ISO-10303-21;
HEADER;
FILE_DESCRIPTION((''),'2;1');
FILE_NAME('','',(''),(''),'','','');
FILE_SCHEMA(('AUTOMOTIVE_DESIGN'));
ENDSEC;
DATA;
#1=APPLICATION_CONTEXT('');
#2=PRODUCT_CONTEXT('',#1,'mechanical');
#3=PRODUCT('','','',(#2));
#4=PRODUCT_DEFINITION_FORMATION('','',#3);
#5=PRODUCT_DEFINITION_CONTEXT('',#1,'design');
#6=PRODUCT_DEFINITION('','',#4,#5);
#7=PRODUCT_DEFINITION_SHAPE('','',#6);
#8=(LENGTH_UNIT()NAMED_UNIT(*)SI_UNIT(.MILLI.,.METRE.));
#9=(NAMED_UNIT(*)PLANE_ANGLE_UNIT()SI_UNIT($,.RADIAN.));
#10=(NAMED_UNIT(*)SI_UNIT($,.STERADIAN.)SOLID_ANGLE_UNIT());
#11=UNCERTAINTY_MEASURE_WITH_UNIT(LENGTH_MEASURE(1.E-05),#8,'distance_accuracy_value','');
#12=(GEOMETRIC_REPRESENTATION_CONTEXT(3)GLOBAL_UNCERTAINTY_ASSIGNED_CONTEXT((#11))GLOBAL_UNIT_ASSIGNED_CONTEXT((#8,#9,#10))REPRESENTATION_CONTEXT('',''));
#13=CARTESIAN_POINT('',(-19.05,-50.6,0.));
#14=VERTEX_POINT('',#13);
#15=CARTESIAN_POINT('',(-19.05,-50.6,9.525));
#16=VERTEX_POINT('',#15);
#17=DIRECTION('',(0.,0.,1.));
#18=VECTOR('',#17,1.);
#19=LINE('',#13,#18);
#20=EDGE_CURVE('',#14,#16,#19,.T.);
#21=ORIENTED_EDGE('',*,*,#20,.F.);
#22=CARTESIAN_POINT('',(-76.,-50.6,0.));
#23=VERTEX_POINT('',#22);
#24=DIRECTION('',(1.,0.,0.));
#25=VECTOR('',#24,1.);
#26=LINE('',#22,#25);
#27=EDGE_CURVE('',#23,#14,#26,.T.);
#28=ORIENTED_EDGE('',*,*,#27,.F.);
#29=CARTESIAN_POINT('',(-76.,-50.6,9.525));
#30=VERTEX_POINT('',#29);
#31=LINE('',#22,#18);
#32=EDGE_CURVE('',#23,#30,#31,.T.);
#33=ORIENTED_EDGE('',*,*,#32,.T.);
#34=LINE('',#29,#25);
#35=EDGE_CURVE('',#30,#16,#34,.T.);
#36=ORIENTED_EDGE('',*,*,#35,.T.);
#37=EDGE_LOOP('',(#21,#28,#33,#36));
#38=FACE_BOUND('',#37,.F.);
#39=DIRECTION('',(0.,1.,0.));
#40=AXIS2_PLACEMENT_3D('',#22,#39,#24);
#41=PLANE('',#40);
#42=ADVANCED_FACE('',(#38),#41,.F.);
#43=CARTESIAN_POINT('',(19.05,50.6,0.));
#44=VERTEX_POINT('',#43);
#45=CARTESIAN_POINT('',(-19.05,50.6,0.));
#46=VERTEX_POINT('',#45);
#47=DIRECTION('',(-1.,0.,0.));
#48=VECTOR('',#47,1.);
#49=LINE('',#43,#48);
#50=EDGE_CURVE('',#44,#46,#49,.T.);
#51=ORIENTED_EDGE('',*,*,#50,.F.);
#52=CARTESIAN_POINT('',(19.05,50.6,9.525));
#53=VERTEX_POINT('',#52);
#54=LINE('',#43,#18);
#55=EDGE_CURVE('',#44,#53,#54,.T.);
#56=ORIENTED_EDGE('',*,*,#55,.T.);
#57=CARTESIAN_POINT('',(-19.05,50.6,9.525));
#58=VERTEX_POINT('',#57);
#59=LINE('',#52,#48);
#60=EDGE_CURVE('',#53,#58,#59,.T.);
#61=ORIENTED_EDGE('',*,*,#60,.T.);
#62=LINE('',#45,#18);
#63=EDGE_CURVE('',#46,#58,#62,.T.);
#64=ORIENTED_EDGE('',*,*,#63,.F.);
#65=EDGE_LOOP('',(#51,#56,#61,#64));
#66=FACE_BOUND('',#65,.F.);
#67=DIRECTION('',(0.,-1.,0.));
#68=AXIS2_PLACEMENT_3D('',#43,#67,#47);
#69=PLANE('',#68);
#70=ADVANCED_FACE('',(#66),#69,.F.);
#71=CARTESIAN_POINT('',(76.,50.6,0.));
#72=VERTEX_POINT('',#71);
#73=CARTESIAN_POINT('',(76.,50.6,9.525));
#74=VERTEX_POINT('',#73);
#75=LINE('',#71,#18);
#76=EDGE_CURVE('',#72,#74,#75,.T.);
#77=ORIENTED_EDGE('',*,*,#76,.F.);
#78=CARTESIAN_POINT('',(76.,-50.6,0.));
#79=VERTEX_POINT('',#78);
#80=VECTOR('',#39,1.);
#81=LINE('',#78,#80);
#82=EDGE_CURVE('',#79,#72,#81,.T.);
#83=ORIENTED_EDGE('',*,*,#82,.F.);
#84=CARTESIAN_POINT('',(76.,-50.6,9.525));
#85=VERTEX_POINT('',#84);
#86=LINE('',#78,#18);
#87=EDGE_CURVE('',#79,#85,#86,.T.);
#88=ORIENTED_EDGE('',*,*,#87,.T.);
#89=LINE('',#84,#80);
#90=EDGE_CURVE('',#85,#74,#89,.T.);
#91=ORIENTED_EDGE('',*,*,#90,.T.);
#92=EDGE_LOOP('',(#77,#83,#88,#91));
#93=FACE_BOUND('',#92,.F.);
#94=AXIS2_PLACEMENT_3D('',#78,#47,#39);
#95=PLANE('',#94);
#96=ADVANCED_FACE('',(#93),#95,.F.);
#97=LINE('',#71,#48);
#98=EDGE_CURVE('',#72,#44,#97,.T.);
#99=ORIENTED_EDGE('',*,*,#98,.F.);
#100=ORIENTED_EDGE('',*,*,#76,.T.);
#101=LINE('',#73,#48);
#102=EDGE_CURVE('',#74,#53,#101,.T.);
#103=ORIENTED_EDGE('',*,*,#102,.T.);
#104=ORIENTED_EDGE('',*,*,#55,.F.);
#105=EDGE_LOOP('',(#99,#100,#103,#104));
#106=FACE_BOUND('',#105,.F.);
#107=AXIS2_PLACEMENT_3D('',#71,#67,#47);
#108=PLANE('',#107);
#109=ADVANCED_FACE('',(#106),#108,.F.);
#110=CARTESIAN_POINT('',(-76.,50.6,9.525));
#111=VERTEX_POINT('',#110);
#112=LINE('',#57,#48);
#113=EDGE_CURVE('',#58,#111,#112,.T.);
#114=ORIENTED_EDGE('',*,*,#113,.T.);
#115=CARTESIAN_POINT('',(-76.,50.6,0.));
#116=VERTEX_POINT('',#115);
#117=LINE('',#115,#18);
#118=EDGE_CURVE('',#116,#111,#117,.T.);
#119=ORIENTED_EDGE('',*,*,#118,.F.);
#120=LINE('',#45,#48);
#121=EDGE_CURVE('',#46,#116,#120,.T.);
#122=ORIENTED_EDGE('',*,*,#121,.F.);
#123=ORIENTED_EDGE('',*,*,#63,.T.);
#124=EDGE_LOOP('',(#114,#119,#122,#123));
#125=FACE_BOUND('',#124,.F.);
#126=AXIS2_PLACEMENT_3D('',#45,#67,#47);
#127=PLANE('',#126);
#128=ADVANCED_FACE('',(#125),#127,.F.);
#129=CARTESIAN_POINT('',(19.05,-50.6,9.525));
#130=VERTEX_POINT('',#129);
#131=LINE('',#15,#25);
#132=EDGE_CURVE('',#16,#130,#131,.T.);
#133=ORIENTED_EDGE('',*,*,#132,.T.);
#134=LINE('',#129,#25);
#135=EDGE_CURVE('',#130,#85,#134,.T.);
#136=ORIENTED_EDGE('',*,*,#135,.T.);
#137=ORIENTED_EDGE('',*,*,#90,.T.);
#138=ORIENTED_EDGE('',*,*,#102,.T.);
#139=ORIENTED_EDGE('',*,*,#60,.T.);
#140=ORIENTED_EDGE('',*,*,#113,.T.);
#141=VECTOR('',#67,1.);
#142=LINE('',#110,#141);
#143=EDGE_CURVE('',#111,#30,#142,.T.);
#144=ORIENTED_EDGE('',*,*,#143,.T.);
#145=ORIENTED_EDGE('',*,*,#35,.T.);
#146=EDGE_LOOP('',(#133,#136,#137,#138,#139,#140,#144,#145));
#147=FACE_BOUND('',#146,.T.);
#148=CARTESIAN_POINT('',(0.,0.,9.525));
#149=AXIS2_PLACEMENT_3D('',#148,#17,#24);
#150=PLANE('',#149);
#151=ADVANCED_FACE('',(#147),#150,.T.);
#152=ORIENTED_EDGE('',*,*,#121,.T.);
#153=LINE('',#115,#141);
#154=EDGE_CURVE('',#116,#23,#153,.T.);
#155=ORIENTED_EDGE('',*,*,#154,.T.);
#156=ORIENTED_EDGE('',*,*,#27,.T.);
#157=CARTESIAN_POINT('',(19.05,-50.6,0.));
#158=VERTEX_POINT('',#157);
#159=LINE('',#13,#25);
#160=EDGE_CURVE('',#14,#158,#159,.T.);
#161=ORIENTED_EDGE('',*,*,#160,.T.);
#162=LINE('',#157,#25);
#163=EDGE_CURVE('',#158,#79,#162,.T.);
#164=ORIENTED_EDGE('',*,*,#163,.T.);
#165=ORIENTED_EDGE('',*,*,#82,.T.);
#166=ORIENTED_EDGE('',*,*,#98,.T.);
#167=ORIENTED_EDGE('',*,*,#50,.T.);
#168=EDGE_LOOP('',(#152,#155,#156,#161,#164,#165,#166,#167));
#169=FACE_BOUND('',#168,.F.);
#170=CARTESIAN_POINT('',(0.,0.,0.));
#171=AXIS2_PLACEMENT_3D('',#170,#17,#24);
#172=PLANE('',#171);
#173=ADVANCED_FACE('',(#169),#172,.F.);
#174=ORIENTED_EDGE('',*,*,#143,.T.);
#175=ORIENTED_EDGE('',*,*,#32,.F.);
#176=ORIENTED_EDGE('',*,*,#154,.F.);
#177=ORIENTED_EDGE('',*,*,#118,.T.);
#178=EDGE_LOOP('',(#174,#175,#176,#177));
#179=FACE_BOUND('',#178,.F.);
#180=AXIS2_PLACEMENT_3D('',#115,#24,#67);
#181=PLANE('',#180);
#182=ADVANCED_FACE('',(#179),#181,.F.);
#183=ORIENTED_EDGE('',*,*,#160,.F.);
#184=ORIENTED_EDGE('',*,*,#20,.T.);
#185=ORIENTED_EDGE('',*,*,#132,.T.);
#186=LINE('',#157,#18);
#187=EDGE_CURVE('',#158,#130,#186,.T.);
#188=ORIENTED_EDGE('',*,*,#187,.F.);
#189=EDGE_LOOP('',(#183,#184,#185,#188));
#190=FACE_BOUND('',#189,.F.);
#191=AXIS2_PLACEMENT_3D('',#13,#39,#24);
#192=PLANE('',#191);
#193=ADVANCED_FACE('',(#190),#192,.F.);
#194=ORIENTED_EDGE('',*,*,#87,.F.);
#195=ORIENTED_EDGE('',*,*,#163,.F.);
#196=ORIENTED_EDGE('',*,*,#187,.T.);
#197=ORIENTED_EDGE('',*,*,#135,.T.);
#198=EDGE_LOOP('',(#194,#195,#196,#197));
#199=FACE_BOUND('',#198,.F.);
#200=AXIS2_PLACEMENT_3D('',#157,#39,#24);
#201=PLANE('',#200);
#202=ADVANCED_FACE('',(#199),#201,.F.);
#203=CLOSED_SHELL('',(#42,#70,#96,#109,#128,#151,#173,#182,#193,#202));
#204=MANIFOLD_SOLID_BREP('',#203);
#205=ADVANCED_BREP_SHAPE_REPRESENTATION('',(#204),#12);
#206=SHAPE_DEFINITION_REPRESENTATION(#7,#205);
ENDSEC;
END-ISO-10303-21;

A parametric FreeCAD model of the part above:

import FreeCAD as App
import Part
import Sketcher

V = App.Vector
Q = App.Units.Quantity

doc = App.newDocument("Part")
body = doc.addObject("PartDesign::Body", "Body")

sketch1 = body.newObject("Sketcher::SketchObject", "Sketch")
sketch1.AttachmentSupport = (doc.getObject("XY_Plane"), [""])
sketch1.MapMode = "FlatFace"
sketch1.addGeometry([
    Part.LineSegment(V(76, 51, 0), V(-76, 51, 0)),
    Part.LineSegment(V(-76, 51, 0), V(-76, -51, 0)),
    Part.LineSegment(V(-76, -51, 0), V(76, -51, 0)),
    Part.LineSegment(V(76, -51, 0), V(76, 51, 0)),
], False)
sketch1.addConstraint([
    Sketcher.Constraint("Coincident", 0, 2, 1, 1),
    Sketcher.Constraint("Coincident", 1, 2, 2, 1),
    Sketcher.Constraint("Coincident", 2, 2, 3, 1),
    Sketcher.Constraint("Coincident", 3, 2, 0, 1),
    Sketcher.Constraint("Horizontal", 0),
    Sketcher.Constraint("Vertical", 1),
    Sketcher.Constraint("Horizontal", 2),
    Sketcher.Constraint("Vertical", 3),
    Sketcher.Constraint("Symmetric", 0, 2, 2, 2, -1, 1),
    Sketcher.Constraint("DistanceX", 0, 2, 0, 1, Q("152 mm")),
    Sketcher.Constraint("DistanceY", 1, 2, 1, 1, Q("101.2 mm")),
])
pad1 = body.newObject("PartDesign::Pad", "Pad")
pad1.Profile = sketch1
pad1.Length = 9.525

doc.recompute()
